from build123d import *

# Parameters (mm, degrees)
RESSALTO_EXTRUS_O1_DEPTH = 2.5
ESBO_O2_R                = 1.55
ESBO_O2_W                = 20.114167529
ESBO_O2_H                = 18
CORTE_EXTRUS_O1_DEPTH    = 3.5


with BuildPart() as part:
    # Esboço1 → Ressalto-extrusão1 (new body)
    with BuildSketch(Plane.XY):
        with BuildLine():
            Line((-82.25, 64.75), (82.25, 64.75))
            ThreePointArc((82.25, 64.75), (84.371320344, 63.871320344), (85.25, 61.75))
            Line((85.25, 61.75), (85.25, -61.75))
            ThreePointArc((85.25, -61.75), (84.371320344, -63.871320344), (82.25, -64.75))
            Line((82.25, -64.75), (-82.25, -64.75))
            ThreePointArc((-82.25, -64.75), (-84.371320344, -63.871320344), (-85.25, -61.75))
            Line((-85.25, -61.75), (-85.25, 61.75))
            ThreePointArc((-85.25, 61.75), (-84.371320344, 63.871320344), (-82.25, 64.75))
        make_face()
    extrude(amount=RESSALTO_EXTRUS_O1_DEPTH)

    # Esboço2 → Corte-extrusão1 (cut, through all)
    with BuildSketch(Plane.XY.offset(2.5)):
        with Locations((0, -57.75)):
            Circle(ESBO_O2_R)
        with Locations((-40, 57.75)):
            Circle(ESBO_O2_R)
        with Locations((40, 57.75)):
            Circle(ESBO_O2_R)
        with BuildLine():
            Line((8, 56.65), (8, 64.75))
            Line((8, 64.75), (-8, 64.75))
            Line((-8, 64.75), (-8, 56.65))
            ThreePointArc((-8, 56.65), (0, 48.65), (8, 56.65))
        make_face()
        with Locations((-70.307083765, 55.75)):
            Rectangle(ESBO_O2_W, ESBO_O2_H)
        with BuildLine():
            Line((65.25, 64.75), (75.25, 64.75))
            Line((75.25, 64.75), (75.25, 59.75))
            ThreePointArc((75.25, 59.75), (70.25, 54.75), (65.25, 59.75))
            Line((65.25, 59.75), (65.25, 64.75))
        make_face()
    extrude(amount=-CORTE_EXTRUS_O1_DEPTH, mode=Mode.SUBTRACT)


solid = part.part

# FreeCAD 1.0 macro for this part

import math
import FreeCAD as App
import Part
import Sketcher


def add_polygon(sketch, points):
    """Adds a closed chain of lines whose ends are joined by coincident constraints."""
    first, n = sketch.GeometryCount, len(points)
    for a, b in zip(points, points[1:] + points[:1]):
        sketch.addGeometry(Part.LineSegment(App.Vector(*a, 0), App.Vector(*b, 0)), False)
    for i in range(n):
        sketch.addConstraint(Sketcher.Constraint("Coincident", first + i, 2, first + (i + 1) % n, 1))

doc = App.newDocument("Part")
body = doc.addObject("PartDesign::Body", "Body")

sketch1 = doc.addObject("Sketcher::SketchObject", "Sketch")
body.addObject(sketch1)
sketch1.AttachmentSupport = (doc.XY_Plane, [""])
sketch1.MapMode = "FlatFace"
sketch1.addGeometry([
    Part.LineSegment(App.Vector(82.25, 64.75, 0), App.Vector(-82.25, 64.75, 0)),
    Part.ArcOfCircle(Part.Circle(App.Vector(-82.25, 61.75, 0), App.Vector(0, 0, 1), 3), math.radians(90), math.radians(180)),
    Part.LineSegment(App.Vector(-85.25, 61.75, 0), App.Vector(-85.25, -61.75, 0)),
    Part.ArcOfCircle(Part.Circle(App.Vector(-82.25, -61.75, 0), App.Vector(0, 0, 1), 3), math.radians(180), math.radians(270)),
    Part.LineSegment(App.Vector(-82.25, -64.75, 0), App.Vector(82.25, -64.75, 0)),
    Part.ArcOfCircle(Part.Circle(App.Vector(82.25, -61.75, 0), App.Vector(0, 0, 1), 3), math.radians(-90), math.radians(0)),
    Part.LineSegment(App.Vector(85.25, -61.75, 0), App.Vector(85.25, 61.75, 0)),
    Part.ArcOfCircle(Part.Circle(App.Vector(82.25, 61.75, 0), App.Vector(0, 0, 1), 3), math.radians(0), math.radians(90)),
], False)
sketch1.addConstraint([
    Sketcher.Constraint("Tangent", 0, 2, 1, 1),
    Sketcher.Constraint("Tangent", 1, 2, 2, 1),
    Sketcher.Constraint("Tangent", 2, 2, 3, 1),
    Sketcher.Constraint("Tangent", 3, 2, 4, 1),
    Sketcher.Constraint("Tangent", 4, 2, 5, 1),
    Sketcher.Constraint("Tangent", 5, 2, 6, 1),
    Sketcher.Constraint("Tangent", 6, 2, 7, 1),
    Sketcher.Constraint("Tangent", 7, 2, 0, 1),
    Sketcher.Constraint("Horizontal", 0),
    Sketcher.Constraint("Vertical", 2),
    Sketcher.Constraint("Horizontal", 4),
    Sketcher.Constraint("Vertical", 6),
    Sketcher.Constraint("Equal", 1, 3),
    Sketcher.Constraint("Equal", 3, 5),
    Sketcher.Constraint("Equal", 5, 7),
    Sketcher.Constraint("Symmetric", 1, 3, 5, 3, -1, 1),
    Sketcher.Constraint("Radius", 1, 3.0),
    Sketcher.Constraint("DistanceX", 0, 2, 0, 1, 164.5),
    Sketcher.Constraint("DistanceY", 2, 2, 2, 1, 123.5),
])
pad1 = doc.addObject("PartDesign::Pad", "Pad")
body.addObject(pad1)
pad1.Profile = sketch1
pad1.Length = 2.5

sketch2 = doc.addObject("Sketcher::SketchObject", "Sketch001")
body.addObject(sketch2)
sketch2.AttachmentSupport = (doc.XY_Plane, [""])
sketch2.MapMode = "FlatFace"
sketch2.AttachmentOffset = App.Placement(App.Vector(0, 0, 2.5), App.Rotation())
sketch2.addGeometry(Part.Circle(App.Vector(0, -57.75, 0), App.Vector(0, 0, 1), 1.55), False)
sketch2.addGeometry(Part.Circle(App.Vector(-40, 57.75, 0), App.Vector(0, 0, 1), 1.55), False)
sketch2.addGeometry(Part.Circle(App.Vector(40, 57.75, 0), App.Vector(0, 0, 1), 1.55), False)
sketch2.addGeometry(Part.LineSegment(App.Vector(8, 56.65, 0), App.Vector(8, 64.75, 0)), False)
sketch2.addGeometry(Part.LineSegment(App.Vector(8, 64.75, 0), App.Vector(-8, 64.75, 0)), False)
sketch2.addGeometry(Part.LineSegment(App.Vector(-8, 64.75, 0), App.Vector(-8, 56.65, 0)), False)
sketch2.addGeometry(Part.ArcOfCircle(Part.Circle(App.Vector(0, 56.65, 0), App.Vector(0, 0, 1), 8), math.radians(180), math.radians(360)), False)
add_polygon(sketch2, [(-80.364168, 64.75), (-80.364168, 46.75), (-60.25, 46.75), (-60.25, 64.75)])
sketch2.addGeometry(Part.LineSegment(App.Vector(75.25, 64.75, 0), App.Vector(65.25, 64.75, 0)), False)
sketch2.addGeometry(Part.LineSegment(App.Vector(65.25, 64.75, 0), App.Vector(65.25, 59.75, 0)), False)
sketch2.addGeometry(Part.ArcOfCircle(Part.Circle(App.Vector(70.25, 59.75, 0), App.Vector(0, 0, 1), 5), math.radians(180), math.radians(360)), False)
sketch2.addGeometry(Part.LineSegment(App.Vector(75.25, 59.75, 0), App.Vector(75.25, 64.75, 0)), False)
sketch2.addConstraint([
    Sketcher.Constraint("Coincident", 3, 2, 4, 1),
    Sketcher.Constraint("Coincident", 4, 2, 5, 1),
    Sketcher.Constraint("Tangent", 5, 2, 6, 1),
    Sketcher.Constraint("Tangent", 6, 2, 3, 1),
    Sketcher.Constraint("Coincident", 11, 2, 12, 1),
    Sketcher.Constraint("Tangent", 12, 2, 13, 1),
    Sketcher.Constraint("Tangent", 13, 2, 14, 1),
    Sketcher.Constraint("Coincident", 14, 2, 11, 1),
    Sketcher.Constraint("Vertical", 3),
    Sketcher.Constraint("Horizontal", 4),
    Sketcher.Constraint("Vertical", 5),
    Sketcher.Constraint("Vertical", 7),
    Sketcher.Constraint("Horizontal", 8),
    Sketcher.Constraint("Vertical", 9),
    Sketcher.Constraint("Horizontal", 10),
    Sketcher.Constraint("Horizontal", 11),
    Sketcher.Constraint("Vertical", 12),
    Sketcher.Constraint("Vertical", 14),
    Sketcher.Constraint("Equal", 0, 1),
    Sketcher.Constraint("Equal", 1, 2),
    Sketcher.Constraint("Symmetric", 1, 3, 2, 3, -2),
    Sketcher.Constraint("PointOnObject", 0, 3, -2),
    Sketcher.Constraint("PointOnObject", 6, 3, -2),
    Sketcher.Constraint("Horizontal", 4, 2, 9, 2),
    Sketcher.Constraint("Horizontal", 10, 2, 11, 2),
    Sketcher.Constraint("Radius", 6, 8.0),
    Sketcher.Constraint("Radius", 13, 5.0),
    Sketcher.Constraint("Diameter", 0, 3.1),
    Sketcher.Constraint("DistanceY", 7, 2, 7, 1, 18.0),
    Sketcher.Constraint("DistanceY", 12, 2, 12, 1, 5.0),
    Sketcher.Constraint("DistanceY", 3, 1, 3, 2, 8.1),
    Sketcher.Constraint("DistanceX", 1, 3, -1, 1, 40.0),
    Sketcher.Constraint("DistanceY", 2, 3, 13, 3, 2.0),
    Sketcher.Constraint("DistanceY", 0, 3, 1, 3, 115.5),
    Sketcher.Constraint("DistanceY", 0, 3, -1, 1, 57.75),
    Sketcher.Constraint("DistanceX", -1, 1, 13, 3, 70.25),
    Sketcher.Constraint("DistanceX", 8, 2, -1, 1, 60.25),
    Sketcher.Constraint("DistanceX", 8, 1, 8, 2, 20.114168),
])
pocket1 = doc.addObject("PartDesign::Pocket", "Pocket")
body.addObject(pocket1)
pocket1.Profile = sketch2
pocket1.Type = "ThroughAll"

doc.recompute()
